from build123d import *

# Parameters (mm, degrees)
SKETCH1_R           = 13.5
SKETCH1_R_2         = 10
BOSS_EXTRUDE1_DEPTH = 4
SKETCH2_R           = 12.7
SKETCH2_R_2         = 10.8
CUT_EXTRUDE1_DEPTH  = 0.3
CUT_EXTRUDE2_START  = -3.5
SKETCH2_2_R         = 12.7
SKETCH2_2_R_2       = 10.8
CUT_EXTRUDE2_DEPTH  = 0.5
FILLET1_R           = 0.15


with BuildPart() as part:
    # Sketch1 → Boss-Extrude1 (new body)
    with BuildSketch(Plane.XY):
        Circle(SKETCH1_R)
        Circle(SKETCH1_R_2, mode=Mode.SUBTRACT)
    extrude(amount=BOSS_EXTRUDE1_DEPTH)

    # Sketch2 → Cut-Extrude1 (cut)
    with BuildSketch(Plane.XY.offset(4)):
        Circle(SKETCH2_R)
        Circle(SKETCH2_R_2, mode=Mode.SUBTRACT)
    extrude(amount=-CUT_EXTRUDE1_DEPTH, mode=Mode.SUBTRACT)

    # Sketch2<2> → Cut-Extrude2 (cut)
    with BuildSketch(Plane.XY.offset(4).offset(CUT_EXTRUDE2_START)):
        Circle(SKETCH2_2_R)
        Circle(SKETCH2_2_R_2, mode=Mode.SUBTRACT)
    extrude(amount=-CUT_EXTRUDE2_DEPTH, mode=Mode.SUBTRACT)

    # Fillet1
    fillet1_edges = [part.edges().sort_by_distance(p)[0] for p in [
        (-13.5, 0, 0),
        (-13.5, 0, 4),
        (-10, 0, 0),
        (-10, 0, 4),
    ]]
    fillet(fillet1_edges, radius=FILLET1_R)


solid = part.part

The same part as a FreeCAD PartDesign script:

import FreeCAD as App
import Part
import Sketcher

V = App.Vector


def edges_at(feature, points):
    """Names of the edges that pass closest to the given points."""
    edges = feature.Shape.Edges
    near = lambda p: min(range(len(edges)), key=lambda i: edges[i].distToShape(Part.Vertex(*p))[0])
    return sorted({f"Edge{near(p) + 1}" for p in points})

doc = App.newDocument("Part")
body = doc.addObject("PartDesign::Body", "Body")

# Sketch on XY plane
sketch1 = doc.addObject("Sketcher::SketchObject", "Sketch")
body.addObject(sketch1)
sketch1.AttachmentSupport = (doc.XY_Plane, [""])
sketch1.MapMode = "FlatFace"
sketch1.addGeometry([
    Part.Circle(V(0, 0, 0), V(0, 0, 1), 13.5),
    Part.Circle(V(0, 0, 0), V(0, 0, 1), 10),
], False)
sketch1.addConstraint([
    Sketcher.Constraint("Coincident", 0, 3, -1, 1),
    Sketcher.Constraint("Coincident", 1, 3, -1, 1),
    Sketcher.Constraint("Diameter", 0, 27.0),
    Sketcher.Constraint("Diameter", 1, 20.0),
])
pad1 = doc.addObject("PartDesign::Pad", "Pad")
body.addObject(pad1)
pad1.Profile = sketch1
pad1.Length = 4

# Sketch on XY plane
sketch2 = doc.addObject("Sketcher::SketchObject", "Sketch001")
body.addObject(sketch2)
sketch2.AttachmentSupport = (doc.XY_Plane, [""])
sketch2.MapMode = "FlatFace"
sketch2.AttachmentOffset = App.Placement(V(0, 0, 4), App.Rotation())
sketch2.addGeometry([
    Part.Circle(V(0, 0, 0), V(0, 0, 1), 12.7),
    Part.Circle(V(0, 0, 0), V(0, 0, 1), 10.8),
], False)
sketch2.addConstraint([
    Sketcher.Constraint("Coincident", 0, 3, -1, 1),
    Sketcher.Constraint("Coincident", 1, 3, -1, 1),
    Sketcher.Constraint("Diameter", 0, 25.4),
    Sketcher.Constraint("Diameter", 1, 21.6),
])
pocket1 = doc.addObject("PartDesign::Pocket", "Pocket")
body.addObject(pocket1)
pocket1.Profile = sketch2
pocket1.Length = 0.3

# Sketch on XY plane
sketch3 = doc.addObject("Sketcher::SketchObject", "Sketch002")
body.addObject(sketch3)
sketch3.AttachmentSupport = (doc.XY_Plane, [""])
sketch3.MapMode = "FlatFace"
sketch3.AttachmentOffset = App.Placement(V(0, 0, 0.5), App.Rotation())
sketch3.addGeometry([
    Part.Circle(V(0, 0, 0), V(0, 0, 1), 12.7),
    Part.Circle(V(0, 0, 0), V(0, 0, 1), 10.8),
], False)
sketch3.addConstraint([
    Sketcher.Constraint("Coincident", 0, 3, -1, 1),
    Sketcher.Constraint("Coincident", 1, 3, -1, 1),
    Sketcher.Constraint("Diameter", 0, 25.4),
    Sketcher.Constraint("Diameter", 1, 21.6),
])
pocket2 = doc.addObject("PartDesign::Pocket", "Pocket001")
body.addObject(pocket2)
pocket2.Profile = sketch3
pocket2.Length = 0.5
doc.recompute()

fillet = doc.addObject("PartDesign::Fillet", "Fillet")
body.addObject(fillet)
fillet.Base = (pocket2, edges_at(pocket2, [
    (-13.5, 0, 0),
    (-13.5, 0, 4),
    (-10, 0, 0),
    (-10, 0, 4),
]))
fillet.Radius = 0.15

doc.recompute()
